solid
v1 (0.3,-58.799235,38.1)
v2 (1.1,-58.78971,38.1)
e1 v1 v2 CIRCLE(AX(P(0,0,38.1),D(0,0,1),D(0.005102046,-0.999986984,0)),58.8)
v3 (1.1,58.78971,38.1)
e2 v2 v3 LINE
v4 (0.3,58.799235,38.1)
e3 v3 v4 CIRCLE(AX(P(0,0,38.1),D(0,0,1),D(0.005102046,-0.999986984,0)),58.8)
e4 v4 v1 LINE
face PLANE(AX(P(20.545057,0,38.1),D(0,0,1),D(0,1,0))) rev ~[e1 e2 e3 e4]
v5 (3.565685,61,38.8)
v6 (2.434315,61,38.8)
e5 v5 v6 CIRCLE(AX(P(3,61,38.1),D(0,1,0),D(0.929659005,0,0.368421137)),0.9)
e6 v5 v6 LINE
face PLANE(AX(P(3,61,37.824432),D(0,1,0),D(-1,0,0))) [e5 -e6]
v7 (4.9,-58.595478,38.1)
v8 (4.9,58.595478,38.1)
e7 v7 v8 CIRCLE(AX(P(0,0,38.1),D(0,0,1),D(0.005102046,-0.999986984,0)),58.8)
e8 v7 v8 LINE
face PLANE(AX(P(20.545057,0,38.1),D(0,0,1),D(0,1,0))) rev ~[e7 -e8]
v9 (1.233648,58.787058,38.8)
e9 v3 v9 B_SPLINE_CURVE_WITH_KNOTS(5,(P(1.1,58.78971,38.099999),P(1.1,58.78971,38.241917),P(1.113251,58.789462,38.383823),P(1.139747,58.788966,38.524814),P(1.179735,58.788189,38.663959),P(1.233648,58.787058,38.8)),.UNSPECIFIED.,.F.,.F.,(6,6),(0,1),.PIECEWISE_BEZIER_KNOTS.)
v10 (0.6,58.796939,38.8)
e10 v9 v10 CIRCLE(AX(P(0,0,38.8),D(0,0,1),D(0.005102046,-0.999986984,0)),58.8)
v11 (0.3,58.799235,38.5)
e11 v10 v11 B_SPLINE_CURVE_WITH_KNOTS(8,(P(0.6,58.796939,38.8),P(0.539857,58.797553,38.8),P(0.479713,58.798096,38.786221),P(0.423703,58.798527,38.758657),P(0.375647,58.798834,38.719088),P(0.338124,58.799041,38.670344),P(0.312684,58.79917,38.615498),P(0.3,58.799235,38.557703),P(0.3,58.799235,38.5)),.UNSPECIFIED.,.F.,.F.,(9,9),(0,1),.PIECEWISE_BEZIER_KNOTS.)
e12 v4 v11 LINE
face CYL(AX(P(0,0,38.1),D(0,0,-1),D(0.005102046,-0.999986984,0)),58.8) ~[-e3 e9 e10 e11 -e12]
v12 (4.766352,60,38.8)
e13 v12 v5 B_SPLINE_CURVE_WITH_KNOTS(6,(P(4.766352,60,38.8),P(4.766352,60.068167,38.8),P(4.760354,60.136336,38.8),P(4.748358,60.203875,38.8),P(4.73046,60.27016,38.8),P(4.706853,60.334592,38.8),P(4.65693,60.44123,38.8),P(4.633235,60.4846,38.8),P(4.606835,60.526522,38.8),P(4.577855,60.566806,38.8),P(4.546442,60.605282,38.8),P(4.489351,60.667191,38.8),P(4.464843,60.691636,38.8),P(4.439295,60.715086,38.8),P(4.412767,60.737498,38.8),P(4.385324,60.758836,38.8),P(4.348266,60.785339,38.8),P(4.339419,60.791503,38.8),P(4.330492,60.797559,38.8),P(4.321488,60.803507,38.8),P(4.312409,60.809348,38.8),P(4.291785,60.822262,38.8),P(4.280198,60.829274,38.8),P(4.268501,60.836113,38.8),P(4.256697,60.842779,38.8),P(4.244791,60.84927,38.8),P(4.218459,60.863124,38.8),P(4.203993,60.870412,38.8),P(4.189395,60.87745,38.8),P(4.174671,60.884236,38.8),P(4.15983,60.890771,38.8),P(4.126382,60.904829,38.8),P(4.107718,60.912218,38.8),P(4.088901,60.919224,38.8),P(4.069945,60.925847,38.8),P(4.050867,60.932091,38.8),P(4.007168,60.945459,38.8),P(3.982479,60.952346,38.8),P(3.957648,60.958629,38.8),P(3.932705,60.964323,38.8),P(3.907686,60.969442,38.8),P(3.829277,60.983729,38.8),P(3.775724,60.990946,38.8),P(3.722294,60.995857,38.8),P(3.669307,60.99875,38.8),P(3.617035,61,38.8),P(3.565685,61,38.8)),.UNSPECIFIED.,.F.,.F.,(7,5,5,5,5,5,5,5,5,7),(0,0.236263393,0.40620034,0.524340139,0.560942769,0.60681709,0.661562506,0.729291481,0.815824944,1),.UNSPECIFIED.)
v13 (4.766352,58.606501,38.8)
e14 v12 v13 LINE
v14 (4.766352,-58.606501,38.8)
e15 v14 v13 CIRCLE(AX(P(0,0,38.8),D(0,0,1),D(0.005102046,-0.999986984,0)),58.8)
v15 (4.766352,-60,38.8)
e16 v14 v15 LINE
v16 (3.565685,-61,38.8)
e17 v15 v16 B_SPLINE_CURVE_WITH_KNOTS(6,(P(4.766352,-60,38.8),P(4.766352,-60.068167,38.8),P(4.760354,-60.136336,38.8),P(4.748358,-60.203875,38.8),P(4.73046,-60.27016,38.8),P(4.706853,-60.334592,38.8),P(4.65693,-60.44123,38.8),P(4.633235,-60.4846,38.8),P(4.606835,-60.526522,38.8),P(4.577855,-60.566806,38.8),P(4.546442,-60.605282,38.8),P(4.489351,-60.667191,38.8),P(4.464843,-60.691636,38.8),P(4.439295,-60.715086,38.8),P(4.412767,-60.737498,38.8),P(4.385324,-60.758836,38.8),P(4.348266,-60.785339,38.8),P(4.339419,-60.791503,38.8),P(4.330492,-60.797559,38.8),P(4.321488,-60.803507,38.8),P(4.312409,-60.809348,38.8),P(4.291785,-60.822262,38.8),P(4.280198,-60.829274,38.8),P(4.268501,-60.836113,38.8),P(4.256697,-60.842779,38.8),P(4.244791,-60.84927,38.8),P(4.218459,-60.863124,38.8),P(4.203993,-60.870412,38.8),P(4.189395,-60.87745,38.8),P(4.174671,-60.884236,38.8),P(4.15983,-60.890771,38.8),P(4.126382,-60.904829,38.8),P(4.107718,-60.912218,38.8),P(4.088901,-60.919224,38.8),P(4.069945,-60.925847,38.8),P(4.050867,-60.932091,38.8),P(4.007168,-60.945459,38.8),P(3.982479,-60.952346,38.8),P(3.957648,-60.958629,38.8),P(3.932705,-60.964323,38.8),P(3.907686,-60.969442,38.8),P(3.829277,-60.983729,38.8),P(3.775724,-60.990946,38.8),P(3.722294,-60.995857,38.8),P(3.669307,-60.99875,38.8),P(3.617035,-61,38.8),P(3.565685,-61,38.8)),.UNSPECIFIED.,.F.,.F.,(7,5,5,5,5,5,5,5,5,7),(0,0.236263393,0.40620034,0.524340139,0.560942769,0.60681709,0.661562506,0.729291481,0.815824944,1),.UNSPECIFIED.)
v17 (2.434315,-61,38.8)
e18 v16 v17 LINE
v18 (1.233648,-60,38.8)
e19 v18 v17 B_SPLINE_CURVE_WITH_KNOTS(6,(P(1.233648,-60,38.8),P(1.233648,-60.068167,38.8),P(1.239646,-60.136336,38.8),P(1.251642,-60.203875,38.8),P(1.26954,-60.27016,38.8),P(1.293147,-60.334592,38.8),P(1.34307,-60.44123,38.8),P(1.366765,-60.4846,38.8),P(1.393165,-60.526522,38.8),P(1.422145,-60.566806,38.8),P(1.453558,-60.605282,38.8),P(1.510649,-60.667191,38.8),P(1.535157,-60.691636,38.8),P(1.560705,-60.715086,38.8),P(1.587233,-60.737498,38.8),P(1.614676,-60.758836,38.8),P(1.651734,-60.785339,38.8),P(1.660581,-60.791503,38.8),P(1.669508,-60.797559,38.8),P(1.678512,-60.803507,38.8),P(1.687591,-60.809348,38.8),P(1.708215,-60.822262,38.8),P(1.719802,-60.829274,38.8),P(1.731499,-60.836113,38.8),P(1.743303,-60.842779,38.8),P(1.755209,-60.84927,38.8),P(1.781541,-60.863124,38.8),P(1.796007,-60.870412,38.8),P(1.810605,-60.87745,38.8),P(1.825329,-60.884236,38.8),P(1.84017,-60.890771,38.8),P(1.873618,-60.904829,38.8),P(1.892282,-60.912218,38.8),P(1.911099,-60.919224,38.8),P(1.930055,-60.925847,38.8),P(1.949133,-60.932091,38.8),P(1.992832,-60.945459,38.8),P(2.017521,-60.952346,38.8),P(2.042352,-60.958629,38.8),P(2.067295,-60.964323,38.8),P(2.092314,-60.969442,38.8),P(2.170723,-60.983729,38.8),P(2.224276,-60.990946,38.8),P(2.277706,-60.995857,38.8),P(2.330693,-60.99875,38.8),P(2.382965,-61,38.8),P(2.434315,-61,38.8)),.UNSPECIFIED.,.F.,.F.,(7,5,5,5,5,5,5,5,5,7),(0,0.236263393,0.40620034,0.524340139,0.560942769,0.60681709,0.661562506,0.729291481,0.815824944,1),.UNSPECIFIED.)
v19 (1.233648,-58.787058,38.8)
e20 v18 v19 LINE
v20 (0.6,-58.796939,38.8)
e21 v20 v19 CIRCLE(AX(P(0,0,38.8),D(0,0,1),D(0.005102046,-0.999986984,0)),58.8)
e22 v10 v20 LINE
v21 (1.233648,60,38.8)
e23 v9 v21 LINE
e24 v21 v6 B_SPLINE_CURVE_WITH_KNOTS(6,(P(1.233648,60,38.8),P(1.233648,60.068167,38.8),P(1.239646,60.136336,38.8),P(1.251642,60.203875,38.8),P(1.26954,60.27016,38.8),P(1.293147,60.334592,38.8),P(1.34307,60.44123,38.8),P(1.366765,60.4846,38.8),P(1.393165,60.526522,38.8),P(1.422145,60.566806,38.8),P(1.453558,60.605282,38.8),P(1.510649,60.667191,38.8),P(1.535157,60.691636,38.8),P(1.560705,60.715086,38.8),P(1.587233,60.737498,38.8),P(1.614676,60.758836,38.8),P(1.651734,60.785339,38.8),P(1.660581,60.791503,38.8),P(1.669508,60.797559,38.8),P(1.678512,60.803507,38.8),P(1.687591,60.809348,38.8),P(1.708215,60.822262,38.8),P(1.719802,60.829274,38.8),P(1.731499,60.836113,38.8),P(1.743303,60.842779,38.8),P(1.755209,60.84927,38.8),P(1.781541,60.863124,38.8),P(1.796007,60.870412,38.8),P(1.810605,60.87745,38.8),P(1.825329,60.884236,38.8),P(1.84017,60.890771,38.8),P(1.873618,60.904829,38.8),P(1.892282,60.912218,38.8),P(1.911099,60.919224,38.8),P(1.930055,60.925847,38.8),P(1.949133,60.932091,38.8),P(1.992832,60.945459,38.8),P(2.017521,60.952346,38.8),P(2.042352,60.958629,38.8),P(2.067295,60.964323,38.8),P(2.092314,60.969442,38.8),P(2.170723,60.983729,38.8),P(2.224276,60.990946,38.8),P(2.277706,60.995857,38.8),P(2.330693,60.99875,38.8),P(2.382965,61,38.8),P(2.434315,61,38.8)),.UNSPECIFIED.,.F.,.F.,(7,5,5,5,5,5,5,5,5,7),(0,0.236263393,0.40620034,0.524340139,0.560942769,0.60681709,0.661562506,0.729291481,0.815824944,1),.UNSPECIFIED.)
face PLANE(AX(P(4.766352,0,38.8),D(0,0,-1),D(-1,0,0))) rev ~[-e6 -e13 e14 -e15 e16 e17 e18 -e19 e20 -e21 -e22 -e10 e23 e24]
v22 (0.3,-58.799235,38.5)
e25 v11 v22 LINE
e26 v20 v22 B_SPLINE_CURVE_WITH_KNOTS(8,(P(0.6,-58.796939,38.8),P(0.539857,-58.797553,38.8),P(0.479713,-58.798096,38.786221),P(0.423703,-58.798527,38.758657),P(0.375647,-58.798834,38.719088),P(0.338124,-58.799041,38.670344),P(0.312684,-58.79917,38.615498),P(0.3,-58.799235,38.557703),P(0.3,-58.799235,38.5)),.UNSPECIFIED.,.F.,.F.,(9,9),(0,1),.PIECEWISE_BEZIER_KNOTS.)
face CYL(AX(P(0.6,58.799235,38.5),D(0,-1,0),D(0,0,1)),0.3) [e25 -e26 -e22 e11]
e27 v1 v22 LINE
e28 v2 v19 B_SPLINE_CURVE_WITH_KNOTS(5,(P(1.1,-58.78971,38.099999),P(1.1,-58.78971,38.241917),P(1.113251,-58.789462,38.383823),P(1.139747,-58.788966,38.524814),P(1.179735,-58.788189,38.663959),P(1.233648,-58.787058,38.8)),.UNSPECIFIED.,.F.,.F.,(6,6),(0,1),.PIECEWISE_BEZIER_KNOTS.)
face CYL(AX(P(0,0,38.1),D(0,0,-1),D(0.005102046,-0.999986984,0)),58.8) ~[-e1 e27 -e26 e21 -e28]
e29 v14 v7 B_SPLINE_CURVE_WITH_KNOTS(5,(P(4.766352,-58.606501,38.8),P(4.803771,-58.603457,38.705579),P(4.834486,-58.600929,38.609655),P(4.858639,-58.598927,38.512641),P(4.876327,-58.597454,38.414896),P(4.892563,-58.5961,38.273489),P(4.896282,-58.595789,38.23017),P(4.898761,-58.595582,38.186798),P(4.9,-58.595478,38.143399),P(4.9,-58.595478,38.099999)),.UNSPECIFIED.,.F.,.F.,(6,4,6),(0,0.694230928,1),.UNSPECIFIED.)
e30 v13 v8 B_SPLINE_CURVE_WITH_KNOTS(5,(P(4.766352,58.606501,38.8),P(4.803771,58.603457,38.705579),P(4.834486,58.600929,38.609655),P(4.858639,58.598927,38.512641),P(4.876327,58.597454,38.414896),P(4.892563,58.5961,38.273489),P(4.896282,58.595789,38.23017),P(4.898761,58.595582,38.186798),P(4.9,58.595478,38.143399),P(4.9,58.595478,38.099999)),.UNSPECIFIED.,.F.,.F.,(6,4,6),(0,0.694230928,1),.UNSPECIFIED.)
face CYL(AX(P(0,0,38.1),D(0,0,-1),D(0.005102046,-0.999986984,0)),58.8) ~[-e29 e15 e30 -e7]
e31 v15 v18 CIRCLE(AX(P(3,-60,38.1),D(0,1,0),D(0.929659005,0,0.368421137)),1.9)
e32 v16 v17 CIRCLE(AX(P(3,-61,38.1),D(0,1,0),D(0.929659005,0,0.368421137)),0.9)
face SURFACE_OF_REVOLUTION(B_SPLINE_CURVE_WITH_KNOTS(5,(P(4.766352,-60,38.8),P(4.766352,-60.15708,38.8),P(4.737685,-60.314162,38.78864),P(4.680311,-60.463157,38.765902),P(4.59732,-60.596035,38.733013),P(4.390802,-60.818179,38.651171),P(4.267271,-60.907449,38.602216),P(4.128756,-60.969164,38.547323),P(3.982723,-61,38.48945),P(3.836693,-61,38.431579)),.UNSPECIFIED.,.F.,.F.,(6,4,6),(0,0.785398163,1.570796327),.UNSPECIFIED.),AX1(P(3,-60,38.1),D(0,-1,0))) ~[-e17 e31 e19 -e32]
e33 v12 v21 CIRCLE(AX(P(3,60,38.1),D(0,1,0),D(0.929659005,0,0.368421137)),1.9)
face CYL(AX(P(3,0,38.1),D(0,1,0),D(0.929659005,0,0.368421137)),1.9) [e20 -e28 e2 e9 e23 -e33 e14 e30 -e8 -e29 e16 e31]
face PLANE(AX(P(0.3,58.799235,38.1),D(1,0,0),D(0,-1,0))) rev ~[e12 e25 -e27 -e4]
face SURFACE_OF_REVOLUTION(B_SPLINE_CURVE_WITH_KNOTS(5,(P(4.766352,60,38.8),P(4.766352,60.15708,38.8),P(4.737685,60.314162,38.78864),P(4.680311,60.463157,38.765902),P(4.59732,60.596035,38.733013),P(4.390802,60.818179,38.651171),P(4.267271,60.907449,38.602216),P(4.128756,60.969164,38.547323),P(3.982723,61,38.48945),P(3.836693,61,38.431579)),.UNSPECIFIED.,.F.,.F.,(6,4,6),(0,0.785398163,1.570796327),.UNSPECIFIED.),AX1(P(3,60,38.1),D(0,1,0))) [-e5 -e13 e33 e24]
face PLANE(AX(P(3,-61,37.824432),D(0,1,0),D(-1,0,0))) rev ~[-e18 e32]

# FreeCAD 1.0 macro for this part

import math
import FreeCAD as App
import Part
import Sketcher


def edges_at(feature, points):
    """Names of the edges that pass closest to the given points."""
    edges = feature.Shape.Edges
    near = lambda p: min(range(len(edges)), key=lambda i: edges[i].distToShape(Part.Vertex(*p))[0])
    return sorted({f"Edge{near(p) + 1}" for p in points})

doc = App.newDocument("Part")
body = doc.addObject("PartDesign::Body", "Body")

sketch1 = body.newObject("Sketcher::SketchObject", "Sketch")
sketch1.AttachmentSupport = (doc.getObject("XY_Plane"), [""])
sketch1.MapMode = "FlatFace"
sketch1.AttachmentOffset = App.Placement(App.Vector(0, 0, 38.1), App.Rotation())
sketch1.addGeometry([
    Part.ArcOfCircle(Part.Circle(App.Vector(0, 0, 0), App.Vector(0, 0, 1), 59), math.radians(-90), math.radians(90)),
    Part.LineSegment(App.Vector(0, 59, 0), App.Vector(0, -59, 0)),
], False)
sketch1.addConstraint([
    Sketcher.Constraint("Coincident", 0, 1, 1, 2),
    Sketcher.Constraint("Coincident", 1, 1, 0, 2),
    Sketcher.Constraint("Vertical", 1),
    Sketcher.Constraint("Coincident", 0, 3, -1, 1),
    Sketcher.Constraint("Radius", 0, 58.8),
    Sketcher.Constraint("DistanceX", -1, 1, 0, 1, 0.3),
])
pad1 = body.newObject("PartDesign::Pad", "Pad")
pad1.Profile = sketch1
pad1.Length = 0.7

sketch2 = body.newObject("Sketcher::SketchObject", "Sketch001")
sketch2.AttachmentSupport = (doc.getObject("XZ_Plane"), [""])
sketch2.MapMode = "FlatFace"
sketch2.addGeometry([
    Part.ArcOfCircle(Part.Circle(App.Vector(3, 38.1, 0), App.Vector(0, 0, 1), 1.9), math.radians(158), math.radians(382)),
    Part.LineSegment(App.Vector(1.2, 38.8, 0), App.Vector(4.8, 38.8, 0)),
], False)
sketch2.addConstraint([
    Sketcher.Constraint("Coincident", 0, 1, 1, 1),
    Sketcher.Constraint("Coincident", 1, 2, 0, 2),
    Sketcher.Constraint("Horizontal", 1),
    Sketcher.Constraint("Radius", 0, 1.9),
    Sketcher.Constraint("DistanceX", -1, 1, 0, 3, 3.0),
    Sketcher.Constraint("DistanceY", -1, 1, 0, 3, 38.1),
    Sketcher.Constraint("DistanceY", -1, 1, 0, 1, 38.8),
])
pad2 = body.newObject("PartDesign::Pad", "Pad001")
pad2.Profile = sketch2
pad2.Length = 122
pad2.Midplane = True
doc.recompute()

fillet = body.newObject("PartDesign::Fillet", "Fillet")
fillet.Base = (pad2, edges_at(pad2, [(3, -61, 36.2), (3, 61, 36.2)]))
fillet.Radius = 1
doc.recompute()

fillet2 = body.newObject("PartDesign::Fillet", "Fillet001")
fillet2.Base = (fillet, edges_at(fillet, [(0.3, 0, 38.8)]))
fillet2.Radius = 0.3

doc.recompute()
